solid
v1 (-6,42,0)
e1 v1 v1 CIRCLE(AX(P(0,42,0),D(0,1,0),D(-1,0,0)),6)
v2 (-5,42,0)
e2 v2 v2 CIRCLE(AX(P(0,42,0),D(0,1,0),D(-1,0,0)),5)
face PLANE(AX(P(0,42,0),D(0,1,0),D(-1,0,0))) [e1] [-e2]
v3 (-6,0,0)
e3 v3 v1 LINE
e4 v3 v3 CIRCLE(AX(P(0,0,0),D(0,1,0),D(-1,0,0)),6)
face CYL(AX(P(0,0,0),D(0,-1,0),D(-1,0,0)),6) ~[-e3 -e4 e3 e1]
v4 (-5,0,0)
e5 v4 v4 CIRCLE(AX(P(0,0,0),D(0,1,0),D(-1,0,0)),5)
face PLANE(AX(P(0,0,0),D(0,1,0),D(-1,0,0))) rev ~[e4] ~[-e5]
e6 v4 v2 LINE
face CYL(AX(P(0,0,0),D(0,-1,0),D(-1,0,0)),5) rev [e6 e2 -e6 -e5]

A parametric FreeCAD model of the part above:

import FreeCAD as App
import Part
import Sketcher
from FreeCAD import Vector
Q = App.Units.Quantity

doc = App.newDocument("Part")
params = doc.addObject("Spreadsheet::Sheet", "Params")
for row, (alias, value) in enumerate([
    ("sketch1_diameter", "12 mm"),
    ("sketch1_diameter2", "10 mm"),
    ("pad1_length", "42 mm"),
], start=1):
    params.set(f"A{row}", alias)
    params.set(f"B{row}", "=" + value)
    params.setAlias(f"B{row}", alias)

body = doc.addObject("PartDesign::Body", "Body")

sketch1 = doc.addObject("Sketcher::SketchObject", "Sketch")
body.addObject(sketch1)
sketch1.AttachmentSupport = (doc.XZ_Plane, [""])
sketch1.MapMode = "FlatFace"
sketch1.addGeometry(Part.Circle(Vector(0, 0, 0), Vector(0, 0, 1), 6), False)
sketch1.addGeometry(Part.Circle(Vector(0, 0, 0), Vector(0, 0, 1), 5), False)
sketch1.addConstraint(Sketcher.Constraint("Coincident", 0, 3, -1, 1))
sketch1.addConstraint(Sketcher.Constraint("Coincident", 1, 3, -1, 1))
sketch1.addConstraint(Sketcher.Constraint("Diameter", 0, Q("12 mm")))
sketch1.addConstraint(Sketcher.Constraint("Diameter", 1, Q("10 mm")))
sketch1.setExpression("Constraints[2]", "Params.sketch1_diameter")
sketch1.setExpression("Constraints[3]", "Params.sketch1_diameter2")
pad1 = doc.addObject("PartDesign::Pad", "Pad")
body.addObject(pad1)
pad1.Profile = sketch1
pad1.setExpression("Length", "Params.pad1_length")
pad1.Reversed = True

doc.recompute()
